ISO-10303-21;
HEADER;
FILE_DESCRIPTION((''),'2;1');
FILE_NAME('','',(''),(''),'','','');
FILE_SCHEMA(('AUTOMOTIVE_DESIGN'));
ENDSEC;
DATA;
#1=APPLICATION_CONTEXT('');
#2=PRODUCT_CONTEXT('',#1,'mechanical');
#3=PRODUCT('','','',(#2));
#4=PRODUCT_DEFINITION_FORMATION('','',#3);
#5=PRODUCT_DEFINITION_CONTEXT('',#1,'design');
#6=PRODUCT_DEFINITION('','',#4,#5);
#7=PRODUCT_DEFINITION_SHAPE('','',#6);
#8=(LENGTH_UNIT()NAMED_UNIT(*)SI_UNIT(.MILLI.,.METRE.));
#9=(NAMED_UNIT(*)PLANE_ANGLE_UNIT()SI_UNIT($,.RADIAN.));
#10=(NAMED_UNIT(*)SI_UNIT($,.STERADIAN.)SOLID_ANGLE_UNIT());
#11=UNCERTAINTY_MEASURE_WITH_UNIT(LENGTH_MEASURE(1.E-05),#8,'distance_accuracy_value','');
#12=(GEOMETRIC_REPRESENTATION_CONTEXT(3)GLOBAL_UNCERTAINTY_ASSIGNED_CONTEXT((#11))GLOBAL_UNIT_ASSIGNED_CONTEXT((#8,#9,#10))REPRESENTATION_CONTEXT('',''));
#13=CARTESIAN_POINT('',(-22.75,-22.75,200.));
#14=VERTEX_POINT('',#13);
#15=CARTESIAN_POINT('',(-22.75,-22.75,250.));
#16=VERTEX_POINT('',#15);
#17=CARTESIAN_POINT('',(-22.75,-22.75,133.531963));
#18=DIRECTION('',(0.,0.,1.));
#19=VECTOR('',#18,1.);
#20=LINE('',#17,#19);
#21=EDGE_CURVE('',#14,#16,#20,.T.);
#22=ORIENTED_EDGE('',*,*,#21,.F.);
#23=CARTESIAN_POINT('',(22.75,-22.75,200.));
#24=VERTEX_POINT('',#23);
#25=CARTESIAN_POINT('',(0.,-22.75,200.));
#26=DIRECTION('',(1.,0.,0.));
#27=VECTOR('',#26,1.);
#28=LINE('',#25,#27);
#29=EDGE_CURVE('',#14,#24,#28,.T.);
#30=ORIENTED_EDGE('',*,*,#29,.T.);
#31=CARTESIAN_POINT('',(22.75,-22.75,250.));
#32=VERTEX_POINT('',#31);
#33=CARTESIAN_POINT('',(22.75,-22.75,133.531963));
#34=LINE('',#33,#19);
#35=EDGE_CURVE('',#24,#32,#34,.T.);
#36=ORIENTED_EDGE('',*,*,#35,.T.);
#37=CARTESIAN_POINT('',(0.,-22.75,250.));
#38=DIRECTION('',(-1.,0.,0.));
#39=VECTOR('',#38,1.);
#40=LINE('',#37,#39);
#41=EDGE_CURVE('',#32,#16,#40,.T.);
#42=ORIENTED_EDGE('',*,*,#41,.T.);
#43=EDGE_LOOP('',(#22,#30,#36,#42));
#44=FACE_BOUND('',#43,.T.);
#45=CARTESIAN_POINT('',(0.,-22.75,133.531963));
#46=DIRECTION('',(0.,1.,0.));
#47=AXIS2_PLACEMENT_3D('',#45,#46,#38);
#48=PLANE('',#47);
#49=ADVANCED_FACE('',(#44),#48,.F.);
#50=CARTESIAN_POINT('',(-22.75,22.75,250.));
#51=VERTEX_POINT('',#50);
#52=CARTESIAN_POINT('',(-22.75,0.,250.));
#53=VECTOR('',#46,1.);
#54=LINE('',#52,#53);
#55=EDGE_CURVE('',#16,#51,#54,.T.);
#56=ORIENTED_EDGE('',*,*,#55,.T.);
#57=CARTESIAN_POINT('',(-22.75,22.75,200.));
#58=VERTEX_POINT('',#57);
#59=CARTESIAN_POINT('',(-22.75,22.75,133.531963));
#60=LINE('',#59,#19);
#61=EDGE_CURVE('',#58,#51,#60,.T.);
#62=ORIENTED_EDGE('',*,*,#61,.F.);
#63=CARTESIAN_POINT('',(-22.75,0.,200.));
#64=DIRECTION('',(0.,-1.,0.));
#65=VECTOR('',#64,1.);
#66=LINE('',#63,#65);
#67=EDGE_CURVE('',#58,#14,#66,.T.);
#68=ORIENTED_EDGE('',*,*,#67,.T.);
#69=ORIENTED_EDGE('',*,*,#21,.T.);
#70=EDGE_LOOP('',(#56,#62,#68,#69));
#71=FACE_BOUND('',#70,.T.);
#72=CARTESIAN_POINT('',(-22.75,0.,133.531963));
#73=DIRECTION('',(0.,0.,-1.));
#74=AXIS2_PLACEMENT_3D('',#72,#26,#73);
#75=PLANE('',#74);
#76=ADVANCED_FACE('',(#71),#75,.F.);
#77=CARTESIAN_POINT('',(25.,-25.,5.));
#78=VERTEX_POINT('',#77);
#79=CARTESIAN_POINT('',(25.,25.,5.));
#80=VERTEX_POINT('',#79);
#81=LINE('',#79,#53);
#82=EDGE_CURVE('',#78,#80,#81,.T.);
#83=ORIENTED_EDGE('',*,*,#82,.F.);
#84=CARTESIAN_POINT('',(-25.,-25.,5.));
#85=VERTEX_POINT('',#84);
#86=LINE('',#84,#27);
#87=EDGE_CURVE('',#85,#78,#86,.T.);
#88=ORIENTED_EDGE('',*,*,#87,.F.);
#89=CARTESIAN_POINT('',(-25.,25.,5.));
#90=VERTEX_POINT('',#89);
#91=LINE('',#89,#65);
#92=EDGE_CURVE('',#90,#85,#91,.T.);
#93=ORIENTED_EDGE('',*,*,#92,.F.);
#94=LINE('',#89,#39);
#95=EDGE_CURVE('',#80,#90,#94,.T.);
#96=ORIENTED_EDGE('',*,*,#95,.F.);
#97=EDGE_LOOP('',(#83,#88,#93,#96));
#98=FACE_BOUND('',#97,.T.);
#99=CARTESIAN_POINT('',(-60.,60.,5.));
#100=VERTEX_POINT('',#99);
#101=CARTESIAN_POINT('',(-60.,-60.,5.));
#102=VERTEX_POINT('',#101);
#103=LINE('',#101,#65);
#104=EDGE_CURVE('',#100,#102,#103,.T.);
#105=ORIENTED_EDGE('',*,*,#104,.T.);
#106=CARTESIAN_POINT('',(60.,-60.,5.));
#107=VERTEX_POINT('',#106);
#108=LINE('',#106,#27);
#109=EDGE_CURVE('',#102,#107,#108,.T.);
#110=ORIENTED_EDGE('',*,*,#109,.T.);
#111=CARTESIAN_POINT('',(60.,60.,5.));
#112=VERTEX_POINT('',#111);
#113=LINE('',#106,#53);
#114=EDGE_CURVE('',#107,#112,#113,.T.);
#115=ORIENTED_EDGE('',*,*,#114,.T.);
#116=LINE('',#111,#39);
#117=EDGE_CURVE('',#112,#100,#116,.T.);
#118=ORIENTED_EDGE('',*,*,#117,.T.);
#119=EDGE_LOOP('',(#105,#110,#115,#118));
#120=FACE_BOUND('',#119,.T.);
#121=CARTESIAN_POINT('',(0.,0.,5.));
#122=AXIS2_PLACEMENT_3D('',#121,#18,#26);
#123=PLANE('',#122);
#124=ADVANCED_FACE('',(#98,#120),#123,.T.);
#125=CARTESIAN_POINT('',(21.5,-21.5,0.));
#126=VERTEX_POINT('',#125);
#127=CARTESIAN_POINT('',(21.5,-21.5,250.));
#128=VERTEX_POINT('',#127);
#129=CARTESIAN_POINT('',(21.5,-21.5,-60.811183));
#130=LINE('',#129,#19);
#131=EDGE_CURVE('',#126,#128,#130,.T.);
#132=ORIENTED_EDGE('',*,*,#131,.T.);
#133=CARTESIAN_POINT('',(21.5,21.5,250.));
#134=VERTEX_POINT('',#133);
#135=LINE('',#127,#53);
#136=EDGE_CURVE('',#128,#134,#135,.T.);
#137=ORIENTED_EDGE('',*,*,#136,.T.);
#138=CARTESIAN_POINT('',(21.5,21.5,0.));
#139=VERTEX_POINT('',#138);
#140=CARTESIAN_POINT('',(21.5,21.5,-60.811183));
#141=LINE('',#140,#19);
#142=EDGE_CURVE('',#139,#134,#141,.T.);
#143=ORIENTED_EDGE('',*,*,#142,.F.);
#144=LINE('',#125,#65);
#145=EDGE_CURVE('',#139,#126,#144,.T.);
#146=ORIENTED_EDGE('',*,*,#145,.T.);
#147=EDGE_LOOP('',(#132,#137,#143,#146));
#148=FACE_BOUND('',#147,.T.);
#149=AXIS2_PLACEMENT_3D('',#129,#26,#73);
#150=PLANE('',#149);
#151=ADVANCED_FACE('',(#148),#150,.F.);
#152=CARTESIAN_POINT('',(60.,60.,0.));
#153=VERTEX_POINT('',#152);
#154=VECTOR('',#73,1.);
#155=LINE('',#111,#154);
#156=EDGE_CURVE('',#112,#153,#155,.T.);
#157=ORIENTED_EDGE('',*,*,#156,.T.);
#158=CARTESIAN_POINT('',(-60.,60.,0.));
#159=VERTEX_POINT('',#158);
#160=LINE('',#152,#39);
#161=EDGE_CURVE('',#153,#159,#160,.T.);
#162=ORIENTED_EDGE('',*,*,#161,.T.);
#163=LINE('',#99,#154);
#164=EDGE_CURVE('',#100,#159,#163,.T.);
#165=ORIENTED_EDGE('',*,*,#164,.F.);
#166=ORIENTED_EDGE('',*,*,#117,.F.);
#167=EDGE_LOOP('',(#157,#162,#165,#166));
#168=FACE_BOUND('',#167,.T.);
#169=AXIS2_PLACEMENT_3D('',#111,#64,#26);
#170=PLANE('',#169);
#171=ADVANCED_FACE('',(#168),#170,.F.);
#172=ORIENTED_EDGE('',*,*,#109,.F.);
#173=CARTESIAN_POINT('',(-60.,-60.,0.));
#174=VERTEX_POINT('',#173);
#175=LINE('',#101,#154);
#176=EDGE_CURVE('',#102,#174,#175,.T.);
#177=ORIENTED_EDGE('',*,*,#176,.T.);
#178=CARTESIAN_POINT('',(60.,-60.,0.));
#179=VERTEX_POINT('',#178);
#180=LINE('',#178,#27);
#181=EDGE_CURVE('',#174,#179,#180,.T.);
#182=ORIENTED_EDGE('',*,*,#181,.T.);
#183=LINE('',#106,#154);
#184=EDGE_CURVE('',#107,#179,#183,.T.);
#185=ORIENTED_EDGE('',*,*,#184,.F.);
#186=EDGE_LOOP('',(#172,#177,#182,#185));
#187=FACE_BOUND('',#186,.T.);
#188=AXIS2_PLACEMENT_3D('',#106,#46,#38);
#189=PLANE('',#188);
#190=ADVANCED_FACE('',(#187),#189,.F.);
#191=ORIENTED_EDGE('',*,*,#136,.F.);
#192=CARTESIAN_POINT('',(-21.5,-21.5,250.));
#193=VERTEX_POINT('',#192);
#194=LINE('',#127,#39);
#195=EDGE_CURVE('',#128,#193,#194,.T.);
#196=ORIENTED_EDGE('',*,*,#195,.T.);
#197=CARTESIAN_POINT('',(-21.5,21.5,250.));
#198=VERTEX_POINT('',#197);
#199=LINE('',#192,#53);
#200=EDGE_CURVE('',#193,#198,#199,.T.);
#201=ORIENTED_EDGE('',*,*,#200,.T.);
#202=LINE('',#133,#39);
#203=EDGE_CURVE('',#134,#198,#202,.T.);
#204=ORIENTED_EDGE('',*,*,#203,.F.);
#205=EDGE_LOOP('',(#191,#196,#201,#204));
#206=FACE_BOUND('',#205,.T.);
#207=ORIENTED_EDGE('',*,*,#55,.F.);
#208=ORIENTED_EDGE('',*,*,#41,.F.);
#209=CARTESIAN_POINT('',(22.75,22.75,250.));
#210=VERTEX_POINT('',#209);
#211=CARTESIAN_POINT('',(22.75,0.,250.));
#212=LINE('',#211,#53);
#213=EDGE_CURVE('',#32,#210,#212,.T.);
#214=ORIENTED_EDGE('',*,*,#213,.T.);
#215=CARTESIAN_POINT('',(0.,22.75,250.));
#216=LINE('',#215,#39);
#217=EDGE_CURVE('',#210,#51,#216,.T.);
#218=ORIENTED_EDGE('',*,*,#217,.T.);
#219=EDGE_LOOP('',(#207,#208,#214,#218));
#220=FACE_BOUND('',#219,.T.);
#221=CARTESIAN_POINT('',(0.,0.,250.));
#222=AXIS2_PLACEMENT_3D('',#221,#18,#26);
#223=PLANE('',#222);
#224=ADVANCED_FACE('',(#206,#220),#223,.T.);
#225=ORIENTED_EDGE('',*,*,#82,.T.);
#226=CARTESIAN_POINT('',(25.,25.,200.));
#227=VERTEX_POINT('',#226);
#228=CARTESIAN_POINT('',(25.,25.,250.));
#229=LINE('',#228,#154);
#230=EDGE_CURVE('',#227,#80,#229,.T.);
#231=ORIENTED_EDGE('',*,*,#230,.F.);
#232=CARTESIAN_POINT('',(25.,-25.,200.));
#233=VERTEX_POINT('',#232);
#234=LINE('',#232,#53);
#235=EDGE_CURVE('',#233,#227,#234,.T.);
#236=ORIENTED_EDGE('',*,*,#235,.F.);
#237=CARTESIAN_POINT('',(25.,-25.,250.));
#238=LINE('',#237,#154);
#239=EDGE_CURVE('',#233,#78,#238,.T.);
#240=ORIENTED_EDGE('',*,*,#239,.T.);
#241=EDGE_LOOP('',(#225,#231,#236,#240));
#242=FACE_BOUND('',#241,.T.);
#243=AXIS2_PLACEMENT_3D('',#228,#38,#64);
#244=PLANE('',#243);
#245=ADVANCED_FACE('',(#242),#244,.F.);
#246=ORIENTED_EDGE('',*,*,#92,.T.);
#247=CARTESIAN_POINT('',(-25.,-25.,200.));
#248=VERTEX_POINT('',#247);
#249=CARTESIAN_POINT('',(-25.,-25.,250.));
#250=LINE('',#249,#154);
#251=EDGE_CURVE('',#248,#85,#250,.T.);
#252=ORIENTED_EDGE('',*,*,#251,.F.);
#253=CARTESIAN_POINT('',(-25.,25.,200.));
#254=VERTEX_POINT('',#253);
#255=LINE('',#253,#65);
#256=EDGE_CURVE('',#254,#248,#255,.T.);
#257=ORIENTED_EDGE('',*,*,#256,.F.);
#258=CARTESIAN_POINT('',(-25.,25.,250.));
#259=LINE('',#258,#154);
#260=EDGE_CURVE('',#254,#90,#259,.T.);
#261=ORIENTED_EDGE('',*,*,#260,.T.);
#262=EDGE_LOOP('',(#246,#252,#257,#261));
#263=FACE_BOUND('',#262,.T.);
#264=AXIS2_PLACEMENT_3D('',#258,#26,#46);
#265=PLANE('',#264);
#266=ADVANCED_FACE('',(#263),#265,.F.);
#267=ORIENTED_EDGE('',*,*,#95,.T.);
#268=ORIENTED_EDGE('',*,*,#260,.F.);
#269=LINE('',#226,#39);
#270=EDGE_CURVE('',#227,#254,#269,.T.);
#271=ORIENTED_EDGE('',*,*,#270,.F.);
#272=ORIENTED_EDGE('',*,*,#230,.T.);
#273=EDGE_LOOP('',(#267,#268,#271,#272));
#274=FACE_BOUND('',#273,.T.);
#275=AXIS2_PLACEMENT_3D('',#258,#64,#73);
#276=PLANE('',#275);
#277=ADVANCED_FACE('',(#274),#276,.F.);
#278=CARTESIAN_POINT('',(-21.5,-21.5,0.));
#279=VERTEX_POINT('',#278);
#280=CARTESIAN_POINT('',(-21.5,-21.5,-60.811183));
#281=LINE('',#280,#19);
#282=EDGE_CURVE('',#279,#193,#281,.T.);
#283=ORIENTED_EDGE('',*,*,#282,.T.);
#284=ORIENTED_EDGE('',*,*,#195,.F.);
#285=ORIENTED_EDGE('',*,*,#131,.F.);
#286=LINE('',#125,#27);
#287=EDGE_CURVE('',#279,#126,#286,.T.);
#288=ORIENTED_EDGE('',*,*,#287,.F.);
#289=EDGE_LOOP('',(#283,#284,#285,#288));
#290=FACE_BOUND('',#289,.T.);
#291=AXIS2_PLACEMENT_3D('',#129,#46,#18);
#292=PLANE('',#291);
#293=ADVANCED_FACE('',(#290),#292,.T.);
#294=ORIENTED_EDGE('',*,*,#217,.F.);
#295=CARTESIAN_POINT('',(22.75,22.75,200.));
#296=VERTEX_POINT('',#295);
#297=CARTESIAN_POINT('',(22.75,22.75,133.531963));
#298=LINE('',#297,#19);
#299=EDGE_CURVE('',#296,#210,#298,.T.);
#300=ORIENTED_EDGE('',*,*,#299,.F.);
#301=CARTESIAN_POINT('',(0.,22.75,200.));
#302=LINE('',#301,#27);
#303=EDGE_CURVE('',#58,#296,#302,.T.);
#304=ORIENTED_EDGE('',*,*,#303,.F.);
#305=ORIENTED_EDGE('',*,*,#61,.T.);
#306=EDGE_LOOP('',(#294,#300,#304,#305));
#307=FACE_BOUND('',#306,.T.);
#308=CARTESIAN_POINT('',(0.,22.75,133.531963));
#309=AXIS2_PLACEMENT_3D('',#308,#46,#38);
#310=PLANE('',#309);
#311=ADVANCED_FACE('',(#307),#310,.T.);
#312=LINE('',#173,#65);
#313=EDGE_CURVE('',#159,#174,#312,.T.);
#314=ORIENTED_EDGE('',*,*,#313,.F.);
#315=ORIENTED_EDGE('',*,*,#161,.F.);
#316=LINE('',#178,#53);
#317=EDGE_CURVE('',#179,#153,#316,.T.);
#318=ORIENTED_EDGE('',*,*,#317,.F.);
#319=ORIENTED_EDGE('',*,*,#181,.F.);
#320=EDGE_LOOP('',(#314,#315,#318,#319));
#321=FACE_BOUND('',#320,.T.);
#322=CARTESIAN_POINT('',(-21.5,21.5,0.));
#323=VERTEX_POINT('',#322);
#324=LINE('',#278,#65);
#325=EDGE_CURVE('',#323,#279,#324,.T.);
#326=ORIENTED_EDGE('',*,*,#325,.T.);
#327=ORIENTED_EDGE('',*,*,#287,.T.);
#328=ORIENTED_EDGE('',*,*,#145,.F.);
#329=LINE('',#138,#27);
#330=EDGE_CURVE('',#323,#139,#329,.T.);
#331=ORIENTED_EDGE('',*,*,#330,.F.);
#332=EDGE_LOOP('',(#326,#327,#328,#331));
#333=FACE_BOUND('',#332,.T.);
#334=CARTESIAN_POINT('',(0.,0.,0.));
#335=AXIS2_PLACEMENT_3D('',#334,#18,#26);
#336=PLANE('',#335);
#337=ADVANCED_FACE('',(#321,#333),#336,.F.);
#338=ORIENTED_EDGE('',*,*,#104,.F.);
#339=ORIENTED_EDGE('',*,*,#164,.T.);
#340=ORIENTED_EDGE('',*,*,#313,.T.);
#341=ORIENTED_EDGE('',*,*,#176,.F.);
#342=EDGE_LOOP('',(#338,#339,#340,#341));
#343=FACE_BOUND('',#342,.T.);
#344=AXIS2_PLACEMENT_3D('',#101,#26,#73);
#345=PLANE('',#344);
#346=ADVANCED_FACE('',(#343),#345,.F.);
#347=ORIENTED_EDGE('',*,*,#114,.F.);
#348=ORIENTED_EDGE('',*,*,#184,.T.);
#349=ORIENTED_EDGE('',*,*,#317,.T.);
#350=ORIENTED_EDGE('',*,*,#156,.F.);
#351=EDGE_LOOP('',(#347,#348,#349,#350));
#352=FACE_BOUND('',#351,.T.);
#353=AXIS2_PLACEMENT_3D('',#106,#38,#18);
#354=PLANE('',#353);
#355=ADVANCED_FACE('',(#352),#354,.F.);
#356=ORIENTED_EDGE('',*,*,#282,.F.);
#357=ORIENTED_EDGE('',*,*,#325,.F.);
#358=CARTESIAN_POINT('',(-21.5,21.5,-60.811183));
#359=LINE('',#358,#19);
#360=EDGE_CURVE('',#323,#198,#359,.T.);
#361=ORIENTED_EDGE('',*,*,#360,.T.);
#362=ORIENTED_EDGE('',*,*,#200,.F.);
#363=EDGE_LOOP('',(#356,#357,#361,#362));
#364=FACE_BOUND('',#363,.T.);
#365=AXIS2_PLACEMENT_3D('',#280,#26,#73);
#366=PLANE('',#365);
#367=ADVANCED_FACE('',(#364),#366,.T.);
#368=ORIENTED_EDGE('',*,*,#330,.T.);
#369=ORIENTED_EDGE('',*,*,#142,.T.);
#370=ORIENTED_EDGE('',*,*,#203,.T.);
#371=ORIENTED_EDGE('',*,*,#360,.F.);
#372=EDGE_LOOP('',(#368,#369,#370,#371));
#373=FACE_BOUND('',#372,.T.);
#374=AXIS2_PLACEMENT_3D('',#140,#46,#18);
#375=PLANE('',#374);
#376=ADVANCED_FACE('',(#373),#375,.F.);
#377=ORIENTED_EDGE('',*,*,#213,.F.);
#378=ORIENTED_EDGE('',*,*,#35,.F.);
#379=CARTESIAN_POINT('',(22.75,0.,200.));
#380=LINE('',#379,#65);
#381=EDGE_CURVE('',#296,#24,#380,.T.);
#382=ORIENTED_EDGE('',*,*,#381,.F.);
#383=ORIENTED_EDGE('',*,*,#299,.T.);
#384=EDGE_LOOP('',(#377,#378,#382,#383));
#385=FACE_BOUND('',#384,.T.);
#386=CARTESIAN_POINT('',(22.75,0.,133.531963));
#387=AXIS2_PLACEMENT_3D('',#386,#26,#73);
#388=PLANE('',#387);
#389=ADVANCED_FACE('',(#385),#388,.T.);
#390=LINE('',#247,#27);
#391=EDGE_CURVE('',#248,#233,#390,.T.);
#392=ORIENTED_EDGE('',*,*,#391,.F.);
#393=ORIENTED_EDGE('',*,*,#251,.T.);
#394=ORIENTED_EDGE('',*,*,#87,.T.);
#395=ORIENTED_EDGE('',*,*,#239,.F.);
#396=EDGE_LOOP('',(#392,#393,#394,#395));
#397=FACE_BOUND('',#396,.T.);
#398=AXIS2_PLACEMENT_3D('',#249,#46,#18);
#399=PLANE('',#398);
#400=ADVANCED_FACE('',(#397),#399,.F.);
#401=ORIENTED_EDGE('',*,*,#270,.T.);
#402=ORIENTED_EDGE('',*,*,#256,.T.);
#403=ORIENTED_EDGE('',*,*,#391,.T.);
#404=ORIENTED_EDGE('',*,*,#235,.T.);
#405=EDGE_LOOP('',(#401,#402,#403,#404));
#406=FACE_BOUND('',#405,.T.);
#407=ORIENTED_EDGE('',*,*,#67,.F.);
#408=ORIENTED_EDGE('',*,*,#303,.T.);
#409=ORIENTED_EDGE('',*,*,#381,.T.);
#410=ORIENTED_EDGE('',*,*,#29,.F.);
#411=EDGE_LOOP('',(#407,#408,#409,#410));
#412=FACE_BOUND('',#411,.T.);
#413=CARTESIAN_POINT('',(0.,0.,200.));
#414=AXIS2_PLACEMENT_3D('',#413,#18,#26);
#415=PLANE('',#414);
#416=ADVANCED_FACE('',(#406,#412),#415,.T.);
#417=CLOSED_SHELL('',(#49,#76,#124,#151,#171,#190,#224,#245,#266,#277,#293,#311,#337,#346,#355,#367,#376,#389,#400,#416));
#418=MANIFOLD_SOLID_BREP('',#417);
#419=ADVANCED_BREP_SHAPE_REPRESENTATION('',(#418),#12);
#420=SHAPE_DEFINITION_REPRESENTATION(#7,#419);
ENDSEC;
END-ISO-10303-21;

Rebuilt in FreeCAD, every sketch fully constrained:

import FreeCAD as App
import Part
import Sketcher
from FreeCAD import Vector
Q = App.Units.Quantity


def add_polygon(sketch, points):
    """Adds a closed chain of lines whose ends are joined by coincident constraints."""
    first, n = sketch.GeometryCount, len(points)
    for a, b in zip(points, points[1:] + points[:1]):
        sketch.addGeometry(Part.LineSegment(App.Vector(*a, 0), App.Vector(*b, 0)), False)
    for i in range(n):
        sketch.addConstraint(Sketcher.Constraint("Coincident", first + i, 2, first + (i + 1) % n, 1))

doc = App.newDocument("Part")
params = doc.addObject("Spreadsheet::Sheet", "Params")
for row, (alias, value) in enumerate([
    ("sketch1_width", "120 mm"),
    ("pad1_length", "5 mm"),
    ("sketch2_width", "50 mm"),
    ("pad2_length", "245 mm"),
    ("sketch3_width", "43 mm"),
    ("pocket1_length", "250 mm"),
    ("sketch4_width", "50 mm"),
    ("sketch4_width2", "47 mm"),
    ("pocket2_length", "50 mm"),
    ("sketch5_width", "47 mm"),
    ("sketch5_width2", "45.5 mm"),
    ("pocket3_length", "50 mm"),
], start=1):
    params.set(f"A{row}", alias)
    params.set(f"B{row}", "=" + value)
    params.setAlias(f"B{row}", alias)

body = doc.addObject("PartDesign::Body", "Body")

sketch1 = doc.addObject("Sketcher::SketchObject", "Sketch")
body.addObject(sketch1)
sketch1.AttachmentSupport = (doc.XY_Plane, [""])
sketch1.MapMode = "FlatFace"
add_polygon(sketch1, [(-60, 60), (-60, -60), (60, -60), (60, 60)])
sketch1.addConstraint([
    Sketcher.Constraint("Vertical", 0),
    Sketcher.Constraint("Horizontal", 1),
    Sketcher.Constraint("Vertical", 2),
    Sketcher.Constraint("Horizontal", 3),
    Sketcher.Constraint("Symmetric", 0, 2, 2, 2, -1, 1),
    Sketcher.Constraint("Equal", 3, 0),
    Sketcher.Constraint("DistanceX", 1, 1, 1, 2, Q("120 mm")),
])
sketch1.setExpression("Constraints[10]", "Params.sketch1_width")
pad1 = doc.addObject("PartDesign::Pad", "Pad")
body.addObject(pad1)
pad1.Profile = sketch1
pad1.setExpression("Length", "Params.pad1_length")

sketch2 = doc.addObject("Sketcher::SketchObject", "Sketch001")
body.addObject(sketch2)
sketch2.AttachmentSupport = (doc.XY_Plane, [""])
sketch2.MapMode = "FlatFace"
sketch2.AttachmentOffset = App.Placement(Vector(0, 0, 5), App.Rotation())
add_polygon(sketch2, [(-25, 25), (-25, -25), (25, -25), (25, 25)])
sketch2.addConstraint([
    Sketcher.Constraint("Vertical", 0),
    Sketcher.Constraint("Horizontal", 1),
    Sketcher.Constraint("Vertical", 2),
    Sketcher.Constraint("Horizontal", 3),
    Sketcher.Constraint("Symmetric", 0, 2, 2, 2, -1, 1),
    Sketcher.Constraint("Equal", 3, 0),
    Sketcher.Constraint("DistanceX", 1, 1, 1, 2, Q("50 mm")),
])
sketch2.setExpression("Constraints[10]", "Params.sketch2_width")
pad2 = doc.addObject("PartDesign::Pad", "Pad001")
body.addObject(pad2)
pad2.Profile = sketch2
pad2.setExpression("Length", "Params.pad2_length")

sketch3 = doc.addObject("Sketcher::SketchObject", "Sketch002")
body.addObject(sketch3)
sketch3.AttachmentSupport = (doc.XY_Plane, [""])
sketch3.MapMode = "FlatFace"
sketch3.AttachmentOffset = App.Placement(Vector(0, 0, 250), App.Rotation())
add_polygon(sketch3, [(-21.5, 21.5), (-21.5, -21.5), (21.5, -21.5), (21.5, 21.5)])
sketch3.addConstraint([
    Sketcher.Constraint("Vertical", 0),
    Sketcher.Constraint("Horizontal", 1),
    Sketcher.Constraint("Vertical", 2),
    Sketcher.Constraint("Horizontal", 3),
    Sketcher.Constraint("Symmetric", 0, 2, 2, 2, -1, 1),
    Sketcher.Constraint("Equal", 3, 0),
    Sketcher.Constraint("DistanceX", 1, 1, 1, 2, Q("43 mm")),
])
sketch3.setExpression("Constraints[10]", "Params.sketch3_width")
pocket1 = doc.addObject("PartDesign::Pocket", "Pocket")
body.addObject(pocket1)
pocket1.Profile = sketch3
pocket1.setExpression("Length", "Params.pocket1_length")

sketch4 = doc.addObject("Sketcher::SketchObject", "Sketch003")
body.addObject(sketch4)
sketch4.AttachmentSupport = (doc.XY_Plane, [""])
sketch4.MapMode = "FlatFace"
sketch4.AttachmentOffset = App.Placement(Vector(0, 0, 250), App.Rotation())
add_polygon(sketch4, [(-25, 25), (-25, -25), (25, -25), (25, 25)])
add_polygon(sketch4, [(23.5, -23.5), (-23.5, -23.5), (-23.5, 23.5), (23.5, 23.5)])
sketch4.addConstraint([
    Sketcher.Constraint("Vertical", 0),
    Sketcher.Constraint("Horizontal", 1),
    Sketcher.Constraint("Vertical", 2),
    Sketcher.Constraint("Horizontal", 3),
    Sketcher.Constraint("Horizontal", 4),
    Sketcher.Constraint("Vertical", 5),
    Sketcher.Constraint("Horizontal", 6),
    Sketcher.Constraint("Vertical", 7),
    Sketcher.Constraint("Symmetric", 0, 2, 2, 2, -1, 1),
    Sketcher.Constraint("Symmetric", 4, 2, 6, 2, -1, 1),
    Sketcher.Constraint("Equal", 3, 0),
    Sketcher.Constraint("Equal", 6, 5),
    Sketcher.Constraint("DistanceX", 1, 1, 1, 2, Q("50 mm")),
    Sketcher.Constraint("DistanceX", 4, 2, 4, 1, Q("47 mm")),
])
sketch4.setExpression("Constraints[20]", "Params.sketch4_width")
sketch4.setExpression("Constraints[21]", "Params.sketch4_width2")
pocket2 = doc.addObject("PartDesign::Pocket", "Pocket001")
body.addObject(pocket2)
pocket2.Profile = sketch4
pocket2.setExpression("Length", "Params.pocket2_length")

sketch5 = doc.addObject("Sketcher::SketchObject", "Sketch004")
body.addObject(sketch5)
sketch5.AttachmentSupport = (doc.XY_Plane, [""])
sketch5.MapMode = "FlatFace"
sketch5.AttachmentOffset = App.Placement(Vector(0, 0, 250), App.Rotation())
add_polygon(sketch5, [(-23.5, 23.5), (-23.5, -23.5), (23.5, -23.5), (23.5, 23.5)])
add_polygon(sketch5, [(22.75, -22.75), (-22.75, -22.75), (-22.75, 22.75), (22.75, 22.75)])
sketch5.addConstraint([
    Sketcher.Constraint("Vertical", 0),
    Sketcher.Constraint("Horizontal", 1),
    Sketcher.Constraint("Vertical", 2),
    Sketcher.Constraint("Horizontal", 3),
    Sketcher.Constraint("Horizontal", 4),
    Sketcher.Constraint("Vertical", 5),
    Sketcher.Constraint("Horizontal", 6),
    Sketcher.Constraint("Vertical", 7),
    Sketcher.Constraint("Symmetric", 0, 2, 2, 2, -1, 1),
    Sketcher.Constraint("Symmetric", 4, 2, 6, 2, -1, 1),
    Sketcher.Constraint("Equal", 3, 0),
    Sketcher.Constraint("Equal", 6, 5),
    Sketcher.Constraint("DistanceX", 1, 1, 1, 2, Q("47 mm")),
    Sketcher.Constraint("DistanceX", 4, 2, 4, 1, Q("45.5 mm")),
])
sketch5.setExpression("Constraints[20]", "Params.sketch5_width")
sketch5.setExpression("Constraints[21]", "Params.sketch5_width2")
pocket3 = doc.addObject("PartDesign::Pocket", "Pocket002")
body.addObject(pocket3)
pocket3.Profile = sketch5
pocket3.setExpression("Length", "Params.pocket3_length")

doc.recompute()
